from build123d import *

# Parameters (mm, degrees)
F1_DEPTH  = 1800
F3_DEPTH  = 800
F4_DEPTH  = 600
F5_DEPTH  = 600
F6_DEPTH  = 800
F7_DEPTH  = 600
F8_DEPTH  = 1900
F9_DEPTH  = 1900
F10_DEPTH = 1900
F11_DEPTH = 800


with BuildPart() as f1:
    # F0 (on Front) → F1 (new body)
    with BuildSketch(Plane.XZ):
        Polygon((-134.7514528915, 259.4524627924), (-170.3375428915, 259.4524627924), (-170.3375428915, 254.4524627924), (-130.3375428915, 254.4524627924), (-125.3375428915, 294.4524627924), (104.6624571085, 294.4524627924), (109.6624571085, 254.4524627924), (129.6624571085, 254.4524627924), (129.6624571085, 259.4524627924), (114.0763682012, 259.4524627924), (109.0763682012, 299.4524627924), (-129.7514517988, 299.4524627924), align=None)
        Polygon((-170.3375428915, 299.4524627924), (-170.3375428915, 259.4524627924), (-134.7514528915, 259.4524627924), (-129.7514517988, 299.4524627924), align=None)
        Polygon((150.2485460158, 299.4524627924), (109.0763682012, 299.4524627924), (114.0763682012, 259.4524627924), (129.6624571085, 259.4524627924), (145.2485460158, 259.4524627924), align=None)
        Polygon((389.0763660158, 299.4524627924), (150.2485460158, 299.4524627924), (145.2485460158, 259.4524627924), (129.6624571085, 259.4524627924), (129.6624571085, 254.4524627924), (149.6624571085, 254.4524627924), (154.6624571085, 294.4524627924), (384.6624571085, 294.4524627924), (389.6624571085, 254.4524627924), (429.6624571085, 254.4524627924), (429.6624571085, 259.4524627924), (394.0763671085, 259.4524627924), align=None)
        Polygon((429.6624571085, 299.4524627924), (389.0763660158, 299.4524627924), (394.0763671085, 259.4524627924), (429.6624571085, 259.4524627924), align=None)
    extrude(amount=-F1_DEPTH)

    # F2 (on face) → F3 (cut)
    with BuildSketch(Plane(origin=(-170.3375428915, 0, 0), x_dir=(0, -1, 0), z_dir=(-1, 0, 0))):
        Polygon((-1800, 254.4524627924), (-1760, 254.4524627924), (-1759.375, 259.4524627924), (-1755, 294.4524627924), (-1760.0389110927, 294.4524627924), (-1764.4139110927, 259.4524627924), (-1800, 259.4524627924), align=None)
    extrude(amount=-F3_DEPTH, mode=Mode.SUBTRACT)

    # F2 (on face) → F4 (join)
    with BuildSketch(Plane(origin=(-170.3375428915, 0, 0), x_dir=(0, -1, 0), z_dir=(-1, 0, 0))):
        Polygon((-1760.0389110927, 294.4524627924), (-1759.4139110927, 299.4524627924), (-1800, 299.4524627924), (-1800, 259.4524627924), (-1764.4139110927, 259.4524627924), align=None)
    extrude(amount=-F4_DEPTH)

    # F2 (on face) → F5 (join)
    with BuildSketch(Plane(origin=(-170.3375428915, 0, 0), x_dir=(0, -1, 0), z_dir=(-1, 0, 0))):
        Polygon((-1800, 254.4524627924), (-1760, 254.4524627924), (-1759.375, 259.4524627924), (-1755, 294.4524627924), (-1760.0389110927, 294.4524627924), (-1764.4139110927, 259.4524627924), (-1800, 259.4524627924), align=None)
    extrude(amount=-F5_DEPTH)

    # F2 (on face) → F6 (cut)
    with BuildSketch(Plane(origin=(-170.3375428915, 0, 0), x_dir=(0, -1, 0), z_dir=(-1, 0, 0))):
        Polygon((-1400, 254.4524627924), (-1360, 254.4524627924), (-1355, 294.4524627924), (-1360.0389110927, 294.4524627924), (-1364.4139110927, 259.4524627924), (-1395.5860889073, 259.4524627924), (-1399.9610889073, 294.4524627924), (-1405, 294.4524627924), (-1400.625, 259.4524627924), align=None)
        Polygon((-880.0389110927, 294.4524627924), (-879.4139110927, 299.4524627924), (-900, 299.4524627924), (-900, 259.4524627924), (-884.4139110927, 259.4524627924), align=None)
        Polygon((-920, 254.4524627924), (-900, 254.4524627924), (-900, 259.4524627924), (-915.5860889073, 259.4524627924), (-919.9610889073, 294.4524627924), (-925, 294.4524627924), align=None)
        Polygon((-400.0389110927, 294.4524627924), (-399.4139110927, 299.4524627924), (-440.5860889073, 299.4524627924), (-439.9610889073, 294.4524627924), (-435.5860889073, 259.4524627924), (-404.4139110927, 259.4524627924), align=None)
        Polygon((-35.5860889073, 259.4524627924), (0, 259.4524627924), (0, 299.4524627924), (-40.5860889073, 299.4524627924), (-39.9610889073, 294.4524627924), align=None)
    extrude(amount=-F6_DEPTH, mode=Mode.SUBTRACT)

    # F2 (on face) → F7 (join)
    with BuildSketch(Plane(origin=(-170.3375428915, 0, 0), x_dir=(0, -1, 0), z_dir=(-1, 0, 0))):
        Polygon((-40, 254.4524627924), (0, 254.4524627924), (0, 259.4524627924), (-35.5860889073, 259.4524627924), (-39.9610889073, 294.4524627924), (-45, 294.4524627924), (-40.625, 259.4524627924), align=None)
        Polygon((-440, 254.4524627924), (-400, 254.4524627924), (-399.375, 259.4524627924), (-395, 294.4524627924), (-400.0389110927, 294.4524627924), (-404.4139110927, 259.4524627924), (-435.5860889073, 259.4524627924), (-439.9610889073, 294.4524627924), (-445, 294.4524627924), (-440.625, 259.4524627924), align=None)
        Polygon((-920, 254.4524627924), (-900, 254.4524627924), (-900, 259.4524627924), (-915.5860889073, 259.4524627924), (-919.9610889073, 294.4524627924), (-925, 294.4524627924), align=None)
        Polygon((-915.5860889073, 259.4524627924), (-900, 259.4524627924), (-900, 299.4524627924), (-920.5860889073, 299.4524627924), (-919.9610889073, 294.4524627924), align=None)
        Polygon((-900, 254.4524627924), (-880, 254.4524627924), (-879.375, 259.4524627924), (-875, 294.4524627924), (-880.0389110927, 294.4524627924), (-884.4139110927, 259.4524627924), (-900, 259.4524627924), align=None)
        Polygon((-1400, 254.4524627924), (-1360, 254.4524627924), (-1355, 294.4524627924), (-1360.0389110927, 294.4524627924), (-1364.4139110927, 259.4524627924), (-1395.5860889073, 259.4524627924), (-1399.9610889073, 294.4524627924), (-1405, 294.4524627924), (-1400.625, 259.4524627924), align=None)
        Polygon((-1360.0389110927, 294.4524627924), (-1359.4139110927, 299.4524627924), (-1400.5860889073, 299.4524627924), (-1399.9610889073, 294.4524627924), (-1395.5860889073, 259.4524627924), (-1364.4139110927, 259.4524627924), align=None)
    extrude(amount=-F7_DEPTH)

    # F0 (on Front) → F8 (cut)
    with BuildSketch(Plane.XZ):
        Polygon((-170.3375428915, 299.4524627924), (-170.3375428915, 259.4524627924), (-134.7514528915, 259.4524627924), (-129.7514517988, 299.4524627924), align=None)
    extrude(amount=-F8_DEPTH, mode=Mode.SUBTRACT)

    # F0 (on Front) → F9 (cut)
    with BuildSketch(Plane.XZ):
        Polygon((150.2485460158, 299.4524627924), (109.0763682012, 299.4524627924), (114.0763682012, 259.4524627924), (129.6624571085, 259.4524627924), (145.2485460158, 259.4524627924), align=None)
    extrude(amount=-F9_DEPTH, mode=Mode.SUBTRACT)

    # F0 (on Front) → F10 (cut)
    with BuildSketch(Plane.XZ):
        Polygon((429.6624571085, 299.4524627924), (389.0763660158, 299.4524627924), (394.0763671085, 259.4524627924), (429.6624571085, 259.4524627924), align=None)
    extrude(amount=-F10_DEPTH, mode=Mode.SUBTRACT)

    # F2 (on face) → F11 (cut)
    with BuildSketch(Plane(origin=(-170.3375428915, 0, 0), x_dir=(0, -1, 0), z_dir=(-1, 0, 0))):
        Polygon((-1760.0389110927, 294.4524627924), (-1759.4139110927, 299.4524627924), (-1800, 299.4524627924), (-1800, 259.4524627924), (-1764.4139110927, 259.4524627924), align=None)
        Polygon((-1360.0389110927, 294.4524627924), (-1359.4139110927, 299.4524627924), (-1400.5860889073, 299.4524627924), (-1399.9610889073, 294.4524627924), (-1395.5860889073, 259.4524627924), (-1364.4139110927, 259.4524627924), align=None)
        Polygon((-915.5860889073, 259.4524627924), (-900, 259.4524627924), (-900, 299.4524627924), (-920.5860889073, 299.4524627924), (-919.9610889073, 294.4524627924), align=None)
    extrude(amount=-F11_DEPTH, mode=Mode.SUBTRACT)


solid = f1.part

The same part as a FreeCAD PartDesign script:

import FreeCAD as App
import Part
import Sketcher
from FreeCAD import Vector


def add_polygon(sketch, points):
    """Adds a closed chain of lines whose ends are joined by coincident constraints."""
    first, n = sketch.GeometryCount, len(points)
    for a, b in zip(points, points[1:] + points[:1]):
        sketch.addGeometry(Part.LineSegment(App.Vector(*a, 0), App.Vector(*b, 0)), False)
    for i in range(n):
        sketch.addConstraint(Sketcher.Constraint("Coincident", first + i, 2, first + (i + 1) % n, 1))

doc = App.newDocument("Part")
body = doc.addObject("PartDesign::Body", "Body")
body.AllowCompound = True

sketch1 = body.newObject("Sketcher::SketchObject", "Sketch")
sketch1.AttachmentSupport = (doc.getObject("XZ_Plane"), [""])
sketch1.MapMode = "FlatFace"
add_polygon(sketch1, [(-170, 254), (-130, 254), (-125, 294), (105, 294), (110, 254), (150, 254), (155, 294), (385, 294), (390, 254), (430, 254), (430, 299), (-170, 299)])
sketch1.addConstraint([
    Sketcher.Constraint("Horizontal", 0),
    Sketcher.Constraint("Horizontal", 2),
    Sketcher.Constraint("Horizontal", 4),
    Sketcher.Constraint("Horizontal", 6),
    Sketcher.Constraint("Horizontal", 8),
    Sketcher.Constraint("Vertical", 9),
    Sketcher.Constraint("Horizontal", 10),
    Sketcher.Constraint("Vertical", 11),
    Sketcher.Constraint("Parallel", 1, 5),
    Sketcher.Constraint("Parallel", 3, 7),
    Sketcher.Constraint("Horizontal", 0, 2, 3, 2),
    Sketcher.Constraint("Horizontal", 2, 2, 5, 2),
    Sketcher.Constraint("Horizontal", 4, 2, 7, 2),
    Sketcher.Constraint("Equal", 0, 4),
    Sketcher.Constraint("Equal", 2, 6),
    Sketcher.Constraint("Equal", 4, 8),
    Sketcher.Constraint("Equal", 1, 3),
    Sketcher.Constraint("DistanceX", 0, 1, 0, 2, 40.0),
    Sketcher.Constraint("DistanceX", 2, 1, 2, 2, 230.0),
    Sketcher.Constraint("DistanceX", 10, 2, 10, 1, 600.0),
    Sketcher.Constraint("DistanceY", 9, 1, 9, 2, 45.0),
    Sketcher.Constraint("DistanceY", 0, 2, 1, 2, 40.0),
    Sketcher.Constraint("DistanceX", 0, 2, -1, 1, 130.337543),
    Sketcher.Constraint("DistanceY", -1, 1, 0, 2, 254.452463),
])
pad1 = body.newObject("PartDesign::Pad", "Pad")
pad1.Profile = sketch1
pad1.Length = 1800
pad1.Reversed = True

sketch2 = body.newObject("Sketcher::SketchObject", "Sketch001")
sketch2.AttachmentSupport = (doc.getObject("YZ_Plane"), [""])
sketch2.MapMode = "FlatFace"
sketch2.AttachmentOffset = App.Placement(Vector(0, 0, -170.337543), App.Rotation())
add_polygon(sketch2, [(1800, 254), (1760, 254), (1755, 294), (1760, 294), (1764, 259), (1800, 259)])
sketch2.addConstraint([
    Sketcher.Constraint("Horizontal", 0),
    Sketcher.Constraint("Horizontal", 2),
    Sketcher.Constraint("Horizontal", 4),
    Sketcher.Constraint("Vertical", 5),
    Sketcher.Constraint("Parallel", 1, 3),
    Sketcher.Constraint("DistanceX", 0, 2, 0, 1, 40.0),
    Sketcher.Constraint("DistanceY", 5, 2, 5, 1, 5.0),
    Sketcher.Constraint("DistanceX", -1, 1, 0, 2, 1760.0),
    Sketcher.Constraint("DistanceX", -1, 1, 1, 2, 1755.0),
    Sketcher.Constraint("DistanceY", 0, 2, 1, 2, 40.0),
    Sketcher.Constraint("DistanceX", 2, 1, 2, 2, 5.038911),
    Sketcher.Constraint("DistanceY", -1, 1, 0, 2, 254.452463),
])
pocket1 = body.newObject("PartDesign::Pocket", "Pocket")
pocket1.Profile = sketch2
pocket1.Length = 800
pocket1.Reversed = True

sketch3 = body.newObject("Sketcher::SketchObject", "Sketch002")
sketch3.AttachmentSupport = (doc.getObject("YZ_Plane"), [""])
sketch3.MapMode = "FlatFace"
sketch3.AttachmentOffset = App.Placement(Vector(0, 0, -170.337543), App.Rotation())
add_polygon(sketch3, [(1759, 299), (1800, 299), (1800, 259), (1764, 259)])
sketch3.addConstraint([
    Sketcher.Constraint("Horizontal", 0),
    Sketcher.Constraint("Vertical", 1),
    Sketcher.Constraint("Horizontal", 2),
    Sketcher.Constraint("DistanceY", 1, 2, 1, 1, 40.0),
    Sketcher.Constraint("DistanceX", -1, 1, 0, 2, 1800.0),
    Sketcher.Constraint("DistanceX", 3, 2, 2, 2, 5.0),
    Sketcher.Constraint("DistanceX", 0, 1, 0, 2, 40.586089),
    Sketcher.Constraint("DistanceY", -1, 1, 0, 2, 299.452463),
])
pad2 = body.newObject("PartDesign::Pad", "Pad001")
pad2.Profile = sketch3
pad2.Length = 600

sketch4 = body.newObject("Sketcher::SketchObject", "Sketch003")
sketch4.AttachmentSupport = (doc.getObject("YZ_Plane"), [""])
sketch4.MapMode = "FlatFace"
sketch4.AttachmentOffset = App.Placement(Vector(0, 0, -170.337543), App.Rotation())
add_polygon(sketch4, [(1800, 254), (1760, 254), (1755, 294), (1760, 294), (1764, 259), (1800, 259)])
sketch4.addConstraint([
    Sketcher.Constraint("Horizontal", 0),
    Sketcher.Constraint("Horizontal", 2),
    Sketcher.Constraint("Horizontal", 4),
    Sketcher.Constraint("Vertical", 5),
    Sketcher.Constraint("Parallel", 1, 3),
    Sketcher.Constraint("DistanceX", 0, 2, 0, 1, 40.0),
    Sketcher.Constraint("DistanceY", 5, 2, 5, 1, 5.0),
    Sketcher.Constraint("DistanceX", -1, 1, 0, 2, 1760.0),
    Sketcher.Constraint("DistanceX", -1, 1, 1, 2, 1755.0),
    Sketcher.Constraint("DistanceY", 0, 2, 1, 2, 40.0),
    Sketcher.Constraint("DistanceX", 2, 1, 2, 2, 5.038911),
    Sketcher.Constraint("DistanceY", -1, 1, 0, 2, 254.452463),
])
pad3 = body.newObject("PartDesign::Pad", "Pad002")
pad3.Profile = sketch4
pad3.Length = 600

sketch5 = body.newObject("Sketcher::SketchObject", "Sketch004")
sketch5.AttachmentSupport = (doc.getObject("YZ_Plane"), [""])
sketch5.MapMode = "FlatFace"
sketch5.AttachmentOffset = App.Placement(Vector(0, 0, -170.337543), App.Rotation())
add_polygon(sketch5, [(1400, 254), (1360, 254), (1355, 294), (1360, 294), (1364, 259), (1396, 259), (1400, 294), (1405, 294)])
add_polygon(sketch5, [(879, 299), (900, 299), (900, 259), (884, 259)])
add_polygon(sketch5, [(920, 254), (900, 254), (900, 259), (916, 259), (920, 294), (925, 294)])
add_polygon(sketch5, [(399, 299), (441, 299), (436, 259), (404, 259)])
add_polygon(sketch5, [(36, 259), (0, 259), (0, 299), (41, 299)])
sketch5.addConstraint([
    Sketcher.Constraint("Horizontal", 0),
    Sketcher.Constraint("Horizontal", 2),
    Sketcher.Constraint("Horizontal", 4),
    Sketcher.Constraint("Horizontal", 6),
    Sketcher.Constraint("Horizontal", 8),
    Sketcher.Constraint("Vertical", 9),
    Sketcher.Constraint("Horizontal", 10),
    Sketcher.Constraint("Horizontal", 12),
    Sketcher.Constraint("Vertical", 13),
    Sketcher.Constraint("Horizontal", 14),
    Sketcher.Constraint("Horizontal", 16),
    Sketcher.Constraint("Horizontal", 18),
    Sketcher.Constraint("Horizontal", 20),
    Sketcher.Constraint("Horizontal", 22),
    Sketcher.Constraint("Vertical", 23),
    Sketcher.Constraint("Horizontal", 24),
    Sketcher.Constraint("Coincident", 13, 2, 9, 2),
    Sketcher.Constraint("PointOnObject", 22, 2, -2),
    Sketcher.Constraint("Parallel", 1, 3),
    Sketcher.Constraint("Parallel", 5, 7),
    Sketcher.Constraint("Parallel", 3, 11),
    Sketcher.Constraint("Parallel", 7, 15),
    Sketcher.Constraint("Parallel", 15, 17),
    Sketcher.Constraint("Parallel", 17, 19),
    Sketcher.Constraint("Parallel", 11, 21),
    Sketcher.Constraint("Parallel", 19, 25),
    Sketcher.Constraint("Horizontal", 2, 2, 5, 2),
    Sketcher.Constraint("Horizontal", 4, 2, 9, 2),
    Sketcher.Constraint("Horizontal", 7, 2, 12, 2),
    Sketcher.Constraint("Horizontal", 6, 2, 15, 2),
    Sketcher.Constraint("Horizontal", 11, 2, 18, 2),
    Sketcher.Constraint("Horizontal", 14, 2, 19, 2),
    Sketcher.Constraint("Horizontal", 20, 2, 22, 2),
    Sketcher.Constraint("Horizontal", 21, 2, 23, 2),
    Sketcher.Constraint("Equal", 2, 6),
    Sketcher.Constraint("Equal", 10, 14),
    Sketcher.Constraint("Equal", 6, 16),
    Sketcher.Constraint("Equal", 4, 20),
    Sketcher.Constraint("Equal", 0, 9),
    Sketcher.Constraint("Equal", 3, 5),
    Sketcher.Constraint("Equal", 7, 11),
    Sketcher.Constraint("DistanceX", 0, 2, 0, 1, 40.0),
    Sketcher.Constraint("DistanceX", 12, 2, 12, 1, 20.0),
    Sketcher.Constraint("DistanceY", 13, 1, 13, 2, 5.0),
    Sketcher.Constraint("DistanceX", -1, 1, 0, 2, 1360.0),
    Sketcher.Constraint("DistanceX", -1, 1, 1, 2, 1355.0),
    Sketcher.Constraint("DistanceX", -1, 1, 8, 2, 900.0),
    Sketcher.Constraint("DistanceX", 20, 2, 11, 2, 475.0),
    Sketcher.Constraint("DistanceX", 24, 2, 19, 2, 395.0),
    Sketcher.Constraint("DistanceX", 2, 1, 2, 2, 5.038911),
    Sketcher.Constraint("DistanceY", -1, 1, 0, 2, 254.452463),
])
pocket2 = body.newObject("PartDesign::Pocket", "Pocket001")
pocket2.Profile = sketch5
pocket2.Length = 800
pocket2.Reversed = True

sketch6 = body.newObject("Sketcher::SketchObject", "Sketch005")
sketch6.AttachmentSupport = (doc.getObject("YZ_Plane"), [""])
sketch6.MapMode = "FlatFace"
sketch6.AttachmentOffset = App.Placement(Vector(0, 0, -170.337543), App.Rotation())
add_polygon(sketch6, [(40, 254), (0, 254), (0, 259), (36, 259), (40, 294), (45, 294)])
add_polygon(sketch6, [(440, 254), (400, 254), (395, 294), (400, 294), (404, 259), (436, 259), (440, 294), (445, 294)])
add_polygon(sketch6, [(925, 294), (920, 254), (880, 254), (875, 294), (880, 294), (884, 259), (900, 259), (900, 299), (921, 299), (920, 294)])
add_polygon(sketch6, [(1400, 254), (1360, 254), (1355, 294), (1360, 294), (1359, 299), (1401, 299), (1400, 294), (1405, 294)])
sketch6.addConstraint([
    Sketcher.Constraint("Horizontal", 0),
    Sketcher.Constraint("Vertical", 1),
    Sketcher.Constraint("Horizontal", 2),
    Sketcher.Constraint("Horizontal", 4),
    Sketcher.Constraint("Horizontal", 6),
    Sketcher.Constraint("Horizontal", 8),
    Sketcher.Constraint("Horizontal", 10),
    Sketcher.Constraint("Horizontal", 12),
    Sketcher.Constraint("Horizontal", 15),
    Sketcher.Constraint("Horizontal", 17),
    Sketcher.Constraint("Horizontal", 19),
    Sketcher.Constraint("Vertical", 20),
    Sketcher.Constraint("Horizontal", 21),
    Sketcher.Constraint("Horizontal", 23),
    Sketcher.Constraint("Horizontal", 24),
    Sketcher.Constraint("Horizontal", 26),
    Sketcher.Constraint("Horizontal", 28),
    Sketcher.Constraint("Horizontal", 30),
    Sketcher.Constraint("PointOnObject", 0, 2, -2),
    Sketcher.Constraint("Parallel", 3, 5),
    Sketcher.Constraint("Parallel", 7, 9),
    Sketcher.Constraint("Parallel", 5, 11),
    Sketcher.Constraint("Parallel", 11, 13),
    Sketcher.Constraint("Parallel", 13, 14),
    Sketcher.Constraint("Parallel", 9, 16),
    Sketcher.Constraint("Parallel", 16, 18),
    Sketcher.Constraint("Parallel", 14, 22),
    Sketcher.Constraint("Parallel", 18, 25),
    Sketcher.Constraint("Parallel", 25, 27),
    Sketcher.Constraint("Parallel", 22, 29),
    Sketcher.Constraint("Parallel", 29, 31),
    Sketcher.Constraint("Horizontal", 5, 2, 6, 2),
    Sketcher.Constraint("Horizontal", 4, 2, 7, 2),
    Sketcher.Constraint("Horizontal", 2, 2, 9, 2),
    Sketcher.Constraint("Horizontal", 8, 2, 11, 2),
    Sketcher.Constraint("Horizontal", 13, 2, 14, 2),
    Sketcher.Constraint("Horizontal", 12, 2, 16, 2),
    Sketcher.Constraint("Horizontal", 10, 2, 18, 2),
    Sketcher.Constraint("Horizontal", 17, 2, 22, 2),
    Sketcher.Constraint("Horizontal", 15, 2, 24, 2),
    Sketcher.Constraint("Horizontal", 23, 2, 25, 2),
    Sketcher.Constraint("Horizontal", 21, 2, 27, 2),
    Sketcher.Constraint("Horizontal", 26, 2, 29, 2),
    Sketcher.Constraint("Equal", 0, 6),
    Sketcher.Constraint("Equal", 4, 8),
    Sketcher.Constraint("Equal", 8, 12),
    Sketcher.Constraint("Equal", 6, 15),
    Sketcher.Constraint("Equal", 12, 17),
    Sketcher.Constraint("Equal", 17, 23),
    Sketcher.Constraint("Equal", 15, 24),
    Sketcher.Constraint("Equal", 23, 26),
    Sketcher.Constraint("Equal", 26, 30),
    Sketcher.Constraint("Equal", 24, 20),
    Sketcher.Constraint("Equal", 5, 7),
    Sketcher.Constraint("DistanceX", 0, 2, 0, 1, 40.0),
    Sketcher.Constraint("DistanceY", 1, 1, 1, 2, 5.0),
    Sketcher.Constraint("DistanceX", -1, 1, 4, 2, 45.0),
    Sketcher.Constraint("DistanceX", -1, 1, 6, 2, 400.0),
    Sketcher.Constraint("DistanceX", -1, 1, 14, 2, 920.0),
    Sketcher.Constraint("DistanceX", -1, 1, 19, 2, 900.0),
    Sketcher.Constraint("DistanceX", -1, 1, 24, 2, 1360.0),
    Sketcher.Constraint("DistanceY", 2, 2, 3, 2, 35.0),
    Sketcher.Constraint("DistanceX", 2, 1, 2, 2, 35.586089),
    Sketcher.Constraint("DistanceY", -1, 1, 0, 2, 254.452463),
])
pad4 = body.newObject("PartDesign::Pad", "Pad003")
pad4.Profile = sketch6
pad4.Length = 600

sketch7 = body.newObject("Sketcher::SketchObject", "Sketch006")
sketch7.AttachmentSupport = (doc.getObject("XZ_Plane"), [""])
sketch7.MapMode = "FlatFace"
add_polygon(sketch7, [(-170, 299), (-170, 259), (-135, 259), (-130, 299)])
sketch7.addConstraint([
    Sketcher.Constraint("Vertical", 0),
    Sketcher.Constraint("Horizontal", 1),
    Sketcher.Constraint("Horizontal", 3),
    Sketcher.Constraint("DistanceY", 0, 2, 0, 1, 40.0),
    Sketcher.Constraint("DistanceX", 1, 2, 2, 2, 5.000001),
    Sketcher.Constraint("DistanceX", 1, 1, 1, 2, 35.58609),
    Sketcher.Constraint("DistanceX", 2, 2, -1, 1, 129.751452),
    Sketcher.Constraint("DistanceY", -1, 1, 0, 2, 259.452463),
])
pocket3 = body.newObject("PartDesign::Pocket", "Pocket002")
pocket3.Profile = sketch7
pocket3.Length = 1900

sketch8 = body.newObject("Sketcher::SketchObject", "Sketch007")
sketch8.AttachmentSupport = (doc.getObject("XZ_Plane"), [""])
sketch8.MapMode = "FlatFace"
add_polygon(sketch8, [(150, 299), (109, 299), (114, 259), (145, 259)])
sketch8.addConstraint([
    Sketcher.Constraint("Horizontal", 0),
    Sketcher.Constraint("Horizontal", 2),
    Sketcher.Constraint("Equal", 1, 3),
    Sketcher.Constraint("DistanceX", 0, 2, 1, 2, 5.0),
    Sketcher.Constraint("DistanceY", 1, 2, 0, 2, 40.0),
    Sketcher.Constraint("DistanceX", 0, 2, 0, 1, 41.172178),
    Sketcher.Constraint("DistanceX", -1, 1, 0, 2, 109.076368),
    Sketcher.Constraint("DistanceY", -1, 1, 0, 2, 299.452463),
])
pocket4 = body.newObject("PartDesign::Pocket", "Pocket003")
pocket4.Profile = sketch8
pocket4.Length = 1900

sketch9 = body.newObject("Sketcher::SketchObject", "Sketch008")
sketch9.AttachmentSupport = (doc.getObject("XZ_Plane"), [""])
sketch9.MapMode = "FlatFace"
add_polygon(sketch9, [(430, 299), (389, 299), (394, 259), (430, 259)])
sketch9.addConstraint([
    Sketcher.Constraint("Horizontal", 0),
    Sketcher.Constraint("Horizontal", 2),
    Sketcher.Constraint("Vertical", 3),
    Sketcher.Constraint("DistanceY", 3, 1, 3, 2, 40.0),
    Sketcher.Constraint("DistanceX", 0, 2, 1, 2, 5.000001),
    Sketcher.Constraint("DistanceX", 0, 2, 0, 1, 40.586091),
    Sketcher.Constraint("DistanceX", -1, 1, 0, 2, 389.076366),
    Sketcher.Constraint("DistanceY", -1, 1, 0, 2, 299.452463),
])
pocket5 = body.newObject("PartDesign::Pocket", "Pocket004")
pocket5.Profile = sketch9
pocket5.Length = 1900

sketch10 = body.newObject("Sketcher::SketchObject", "Sketch009")
sketch10.AttachmentSupport = (doc.getObject("YZ_Plane"), [""])
sketch10.MapMode = "FlatFace"
sketch10.AttachmentOffset = App.Placement(Vector(0, 0, -170.337543), App.Rotation())
add_polygon(sketch10, [(1759, 299), (1800, 299), (1800, 259), (1764, 259)])
add_polygon(sketch10, [(1359, 299), (1401, 299), (1396, 259), (1364, 259)])
add_polygon(sketch10, [(916, 259), (900, 259), (900, 299), (921, 299)])
sketch10.addConstraint([
    Sketcher.Constraint("Horizontal", 0),
    Sketcher.Constraint("Vertical", 1),
    Sketcher.Constraint("Horizontal", 2),
    Sketcher.Constraint("Horizontal", 4),
    Sketcher.Constraint("Horizontal", 6),
    Sketcher.Constraint("Horizontal", 8),
    Sketcher.Constraint("Vertical", 9),
    Sketcher.Constraint("Horizontal", 10),
    Sketcher.Constraint("Parallel", 3, 7),
    Sketcher.Constraint("Parallel", 5, 11),
    Sketcher.Constraint("Horizontal", 3, 2, 4, 2),
    Sketcher.Constraint("Horizontal", 2, 2, 5, 2),
    Sketcher.Constraint("Horizontal", 6, 2, 8, 2),
    Sketcher.Constraint("Horizontal", 7, 2, 9, 2),
    Sketcher.Constraint("Equal", 3, 5),
    Sketcher.Constraint("DistanceY", 1, 2, 1, 1, 40.0),
    Sketcher.Constraint("DistanceX", -1, 1, 0, 2, 1800.0),
    Sketcher.Constraint("DistanceX", -1, 1, 8, 2, 900.0),
    Sketcher.Constraint("DistanceX", 3, 2, 2, 2, 5.0),
    Sketcher.Constraint("DistanceX", 6, 2, 3, 2, 395.0),
    Sketcher.Constraint("DistanceX", 10, 2, 5, 2, 475.0),
    Sketcher.Constraint("DistanceX", 0, 1, 0, 2, 40.586089),
    Sketcher.Constraint("DistanceX", 8, 2, 8, 1, 15.586089),
    Sketcher.Constraint("DistanceY", -1, 1, 0, 2, 299.452463),
])
pocket6 = body.newObject("PartDesign::Pocket", "Pocket005")
pocket6.Profile = sketch10
pocket6.Length = 800
pocket6.Reversed = True

doc.recompute()
